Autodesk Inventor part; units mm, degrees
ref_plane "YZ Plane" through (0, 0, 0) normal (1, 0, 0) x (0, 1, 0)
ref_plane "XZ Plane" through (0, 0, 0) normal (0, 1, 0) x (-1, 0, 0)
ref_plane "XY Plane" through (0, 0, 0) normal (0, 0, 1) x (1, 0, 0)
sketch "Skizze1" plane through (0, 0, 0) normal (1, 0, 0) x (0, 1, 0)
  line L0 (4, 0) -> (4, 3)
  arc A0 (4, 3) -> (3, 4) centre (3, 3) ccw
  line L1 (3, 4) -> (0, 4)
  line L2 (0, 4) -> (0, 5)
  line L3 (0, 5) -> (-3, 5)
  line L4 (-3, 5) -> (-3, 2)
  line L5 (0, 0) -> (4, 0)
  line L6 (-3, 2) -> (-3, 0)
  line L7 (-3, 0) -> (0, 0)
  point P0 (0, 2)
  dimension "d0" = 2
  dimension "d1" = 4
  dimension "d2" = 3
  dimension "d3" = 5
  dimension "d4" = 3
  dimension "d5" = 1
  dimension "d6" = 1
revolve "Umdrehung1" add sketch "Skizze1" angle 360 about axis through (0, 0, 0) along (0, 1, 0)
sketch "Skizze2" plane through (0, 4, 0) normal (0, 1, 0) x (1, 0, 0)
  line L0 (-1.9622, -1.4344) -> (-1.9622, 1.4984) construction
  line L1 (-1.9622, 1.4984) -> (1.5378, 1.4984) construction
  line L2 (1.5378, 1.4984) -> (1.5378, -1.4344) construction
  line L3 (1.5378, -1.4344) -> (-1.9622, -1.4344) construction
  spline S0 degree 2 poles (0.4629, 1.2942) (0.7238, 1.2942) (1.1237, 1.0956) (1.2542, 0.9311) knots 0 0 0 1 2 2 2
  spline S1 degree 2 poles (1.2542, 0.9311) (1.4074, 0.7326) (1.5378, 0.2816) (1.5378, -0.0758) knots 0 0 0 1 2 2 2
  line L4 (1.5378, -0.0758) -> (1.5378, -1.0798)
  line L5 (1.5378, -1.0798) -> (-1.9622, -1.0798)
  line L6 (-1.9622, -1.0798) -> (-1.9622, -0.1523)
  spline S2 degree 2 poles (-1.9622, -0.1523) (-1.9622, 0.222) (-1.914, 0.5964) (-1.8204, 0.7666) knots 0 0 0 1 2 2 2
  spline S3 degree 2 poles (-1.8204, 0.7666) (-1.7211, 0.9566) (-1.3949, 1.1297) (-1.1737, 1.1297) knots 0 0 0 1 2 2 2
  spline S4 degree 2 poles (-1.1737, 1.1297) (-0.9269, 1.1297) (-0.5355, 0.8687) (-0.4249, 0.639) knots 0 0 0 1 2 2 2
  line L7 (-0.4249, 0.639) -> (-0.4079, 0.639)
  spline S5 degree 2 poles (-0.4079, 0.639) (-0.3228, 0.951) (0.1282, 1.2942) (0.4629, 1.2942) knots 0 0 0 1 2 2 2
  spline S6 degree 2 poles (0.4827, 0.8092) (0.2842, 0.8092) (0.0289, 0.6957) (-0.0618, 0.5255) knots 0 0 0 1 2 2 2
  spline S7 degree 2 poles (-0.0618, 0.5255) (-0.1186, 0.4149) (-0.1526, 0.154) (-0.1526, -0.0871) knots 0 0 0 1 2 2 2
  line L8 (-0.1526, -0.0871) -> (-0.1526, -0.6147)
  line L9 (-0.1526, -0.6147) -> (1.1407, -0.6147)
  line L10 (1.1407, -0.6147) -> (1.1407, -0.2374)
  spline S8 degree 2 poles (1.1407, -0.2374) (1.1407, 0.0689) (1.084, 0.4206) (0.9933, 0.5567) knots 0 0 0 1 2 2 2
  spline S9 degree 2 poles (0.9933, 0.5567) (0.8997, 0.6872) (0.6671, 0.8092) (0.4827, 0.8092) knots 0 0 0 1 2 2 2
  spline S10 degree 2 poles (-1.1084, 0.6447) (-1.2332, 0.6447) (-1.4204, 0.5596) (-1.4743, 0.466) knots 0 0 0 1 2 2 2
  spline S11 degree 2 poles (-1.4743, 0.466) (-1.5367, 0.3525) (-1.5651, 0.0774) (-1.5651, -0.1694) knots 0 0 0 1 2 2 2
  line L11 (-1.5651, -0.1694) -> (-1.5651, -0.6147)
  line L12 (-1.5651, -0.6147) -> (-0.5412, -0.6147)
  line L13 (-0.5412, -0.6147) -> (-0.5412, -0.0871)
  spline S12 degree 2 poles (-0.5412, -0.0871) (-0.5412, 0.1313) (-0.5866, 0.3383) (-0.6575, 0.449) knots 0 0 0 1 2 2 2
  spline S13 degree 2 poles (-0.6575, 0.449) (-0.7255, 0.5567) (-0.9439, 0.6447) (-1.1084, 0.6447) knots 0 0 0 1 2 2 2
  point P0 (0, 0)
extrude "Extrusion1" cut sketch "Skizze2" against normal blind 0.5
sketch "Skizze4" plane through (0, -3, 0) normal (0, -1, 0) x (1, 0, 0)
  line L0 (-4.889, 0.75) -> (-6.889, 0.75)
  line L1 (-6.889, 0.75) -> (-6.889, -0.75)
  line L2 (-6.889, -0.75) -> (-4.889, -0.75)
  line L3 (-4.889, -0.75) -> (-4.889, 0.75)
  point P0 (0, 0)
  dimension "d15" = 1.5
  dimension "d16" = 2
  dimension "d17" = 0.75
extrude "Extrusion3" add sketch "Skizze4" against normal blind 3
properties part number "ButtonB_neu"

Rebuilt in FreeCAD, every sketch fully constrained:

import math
import FreeCAD as App
import Part
import Sketcher


def add_polygon(sketch, points):
    """Adds a closed chain of lines whose ends are joined by coincident constraints."""
    first, n = sketch.GeometryCount, len(points)
    for a, b in zip(points, points[1:] + points[:1]):
        sketch.addGeometry(Part.LineSegment(App.Vector(*a, 0), App.Vector(*b, 0)), False)
    for i in range(n):
        sketch.addConstraint(Sketcher.Constraint("Coincident", first + i, 2, first + (i + 1) % n, 1))

doc = App.newDocument("Part")
body = doc.addObject("PartDesign::Body", "Body")

# Sketch on YZ plane
sketch1 = body.newObject("Sketcher::SketchObject", "Sketch")
sketch1.AttachmentSupport = (doc.getObject("YZ_Plane"), [""])
sketch1.MapMode = "FlatFace"
sketch1.addGeometry([
    Part.LineSegment(App.Vector(-3, 0, 0), App.Vector(4, 0, 0)),  # 0
    Part.LineSegment(App.Vector(4, 0, 0), App.Vector(4, 3, 0)),  # 1
    Part.ArcOfCircle(Part.Circle(App.Vector(3, 3, 0), App.Vector(0, 0, 1), 1), math.radians(0), math.radians(90)),  # 2
    Part.LineSegment(App.Vector(3, 4, 0), App.Vector(0, 4, 0)),  # 3
    Part.LineSegment(App.Vector(0, 4, 0), App.Vector(0, 5, 0)),  # 4
    Part.LineSegment(App.Vector(0, 5, 0), App.Vector(-3, 5, 0)),  # 5
    Part.LineSegment(App.Vector(-3, 5, 0), App.Vector(-3, 0, 0)),  # 6
], False)
sketch1.addConstraint([
    Sketcher.Constraint("Coincident", 0, 2, 1, 1),
    Sketcher.Constraint("Tangent", 1, 2, 2, 1),
    Sketcher.Constraint("Tangent", 2, 2, 3, 1),
    Sketcher.Constraint("Coincident", 3, 2, 4, 1),
    Sketcher.Constraint("Coincident", 4, 2, 5, 1),
    Sketcher.Constraint("Coincident", 5, 2, 6, 1),
    Sketcher.Constraint("Coincident", 6, 2, 0, 1),
    Sketcher.Constraint("Horizontal", 0),
    Sketcher.Constraint("Vertical", 1),
    Sketcher.Constraint("Horizontal", 3),
    Sketcher.Constraint("Vertical", 4),
    Sketcher.Constraint("Horizontal", 5),
    Sketcher.Constraint("Vertical", 6),
    Sketcher.Constraint("PointOnObject", 0, 2, -1),
    Sketcher.Constraint("PointOnObject", 3, 2, -2),
    Sketcher.Constraint("Equal", 3, 5),
    Sketcher.Constraint("Equal", 5, 1),
    Sketcher.Constraint("Radius", 2, 1.0),
    Sketcher.Constraint("DistanceX", 3, 2, 3, 1, 3.0),
    Sketcher.Constraint("DistanceY", 4, 1, 4, 2, 1.0),
])
revolution = body.newObject("PartDesign::Revolution", "Revolution")
revolution.Profile = sketch1
revolution.ReferenceAxis = (sketch1, ["H_Axis"])
revolution.Angle = 360

# Sketch on XZ plane
sketch2 = body.newObject("Sketcher::SketchObject", "Sketch001")
sketch2.AttachmentSupport = (doc.getObject("XZ_Plane"), [""])
sketch2.MapMode = "FlatFace"
sketch2.AttachmentOffset = App.Placement(App.Vector(0, 0, -4), App.Rotation())
sketch2.addGeometry([
    Part.BSplineCurve([App.Vector(0.4629, -1.2942, 0), App.Vector(0.7238, -1.2942, 0), App.Vector(1.1237, -1.0956, 0), App.Vector(1.2542, -0.9311, 0)], [3, 1, 3], [0, 1, 2], False, 2, [1, 1, 1, 1], False),  # 0
    Part.BSplineCurve([App.Vector(-0.4079, -0.639, 0), App.Vector(-0.3228, -0.951, 0), App.Vector(0.1282, -1.2942, 0), App.Vector(0.4629, -1.2942, 0)], [3, 1, 3], [0, 1, 2], False, 2, [1, 1, 1, 1], False),  # 1
    Part.LineSegment(App.Vector(-0.4079, -0.639, 0), App.Vector(-0.4249, -0.639, 0)),  # 2
    Part.BSplineCurve([App.Vector(-1.1737, -1.1297, 0), App.Vector(-0.9269, -1.1297, 0), App.Vector(-0.5355, -0.8687, 0), App.Vector(-0.4249, -0.639, 0)], [3, 1, 3], [0, 1, 2], False, 2, [1, 1, 1, 1], False),  # 3
    Part.BSplineCurve([App.Vector(-1.8204, -0.7666, 0), App.Vector(-1.7211, -0.9566, 0), App.Vector(-1.3949, -1.1297, 0), App.Vector(-1.1737, -1.1297, 0)], [3, 1, 3], [0, 1, 2], False, 2, [1, 1, 1, 1], False),  # 4
    Part.BSplineCurve([App.Vector(-1.9622, 0.1523, 0), App.Vector(-1.9622, -0.222, 0), App.Vector(-1.914, -0.5964, 0), App.Vector(-1.8204, -0.7666, 0)], [3, 1, 3], [0, 1, 2], False, 2, [1, 1, 1, 1], False),  # 5
    Part.LineSegment(App.Vector(-1.9622, 0.1523, 0), App.Vector(-1.9622, 1.0798, 0)),  # 6
    Part.LineSegment(App.Vector(-1.9622, 1.0798, 0), App.Vector(1.5378, 1.0798, 0)),  # 7
    Part.LineSegment(App.Vector(1.5378, 1.0798, 0), App.Vector(1.5378, 0.0758, 0)),  # 8
    Part.BSplineCurve([App.Vector(1.2542, -0.9311, 0), App.Vector(1.4074, -0.7326, 0), App.Vector(1.5378, -0.2816, 0), App.Vector(1.5378, 0.0758, 0)], [3, 1, 3], [0, 1, 2], False, 2, [1, 1, 1, 1], False),  # 9
    Part.BSplineCurve([App.Vector(-1.1084, -0.6447, 0), App.Vector(-1.2332, -0.6447, 0), App.Vector(-1.4204, -0.5596, 0), App.Vector(-1.4743, -0.466, 0)], [3, 1, 3], [0, 1, 2], False, 2, [1, 1, 1, 1], False),  # 10
    Part.BSplineCurve([App.Vector(-0.6575, -0.449, 0), App.Vector(-0.7255, -0.5567, 0), App.Vector(-0.9439, -0.6447, 0), App.Vector(-1.1084, -0.6447, 0)], [3, 1, 3], [0, 1, 2], False, 2, [1, 1, 1, 1], False),  # 11
    Part.BSplineCurve([App.Vector(-0.5412, 0.0871, 0), App.Vector(-0.5412, -0.1313, 0), App.Vector(-0.5866, -0.3383, 0), App.Vector(-0.6575, -0.449, 0)], [3, 1, 3], [0, 1, 2], False, 2, [1, 1, 1, 1], False),  # 12
    Part.LineSegment(App.Vector(-0.5412, 0.0871, 0), App.Vector(-0.5412, 0.6147, 0)),  # 13
    Part.LineSegment(App.Vector(-0.5412, 0.6147, 0), App.Vector(-1.5651, 0.6147, 0)),  # 14
    Part.LineSegment(App.Vector(-1.5651, 0.6147, 0), App.Vector(-1.5651, 0.1694, 0)),  # 15
    Part.BSplineCurve([App.Vector(-1.4743, -0.466, 0), App.Vector(-1.5367, -0.3525, 0), App.Vector(-1.5651, -0.0774, 0), App.Vector(-1.5651, 0.1694, 0)], [3, 1, 3], [0, 1, 2], False, 2, [1, 1, 1, 1], False),  # 16
    Part.BSplineCurve([App.Vector(0.4827, -0.8092, 0), App.Vector(0.2842, -0.8092, 0), App.Vector(0.0289, -0.6957, 0), App.Vector(-0.0618, -0.5255, 0)], [3, 1, 3], [0, 1, 2], False, 2, [1, 1, 1, 1], False),  # 17
    Part.BSplineCurve([App.Vector(0.9933, -0.5567, 0), App.Vector(0.8997, -0.6872, 0), App.Vector(0.6671, -0.8092, 0), App.Vector(0.4827, -0.8092, 0)], [3, 1, 3], [0, 1, 2], False, 2, [1, 1, 1, 1], False),  # 18
    Part.BSplineCurve([App.Vector(1.1407, 0.2374, 0), App.Vector(1.1407, -0.0689, 0), App.Vector(1.084, -0.4206, 0), App.Vector(0.9933, -0.5567, 0)], [3, 1, 3], [0, 1, 2], False, 2, [1, 1, 1, 1], False),  # 19
    Part.LineSegment(App.Vector(1.1407, 0.2374, 0), App.Vector(1.1407, 0.6147, 0)),  # 20
    Part.LineSegment(App.Vector(1.1407, 0.6147, 0), App.Vector(-0.1526, 0.6147, 0)),  # 21
    Part.LineSegment(App.Vector(-0.1526, 0.6147, 0), App.Vector(-0.1526, 0.0871, 0)),  # 22
    Part.BSplineCurve([App.Vector(-0.0618, -0.5255, 0), App.Vector(-0.1186, -0.4149, 0), App.Vector(-0.1526, -0.154, 0), App.Vector(-0.1526, 0.0871, 0)], [3, 1, 3], [0, 1, 2], False, 2, [1, 1, 1, 1], False),  # 23
], False)
sketch2.addConstraint([
    Sketcher.Constraint("Block", 0),
    Sketcher.Constraint("Block", 1),
    Sketcher.Constraint("Block", 3),
    Sketcher.Constraint("Block", 4),
    Sketcher.Constraint("Block", 5),
    Sketcher.Constraint("Block", 9),
    Sketcher.Constraint("Block", 10),
    Sketcher.Constraint("Block", 11),
    Sketcher.Constraint("Block", 12),
    Sketcher.Constraint("Block", 16),
    Sketcher.Constraint("Block", 17),
    Sketcher.Constraint("Block", 18),
    Sketcher.Constraint("Block", 19),
    Sketcher.Constraint("Block", 23),
    Sketcher.Constraint("Coincident", 1, 1, 2, 1),
    Sketcher.Constraint("Coincident", 2, 2, 3, 2),
    Sketcher.Constraint("Coincident", 5, 1, 6, 1),
    Sketcher.Constraint("Coincident", 6, 2, 7, 1),
    Sketcher.Constraint("Coincident", 7, 2, 8, 1),
    Sketcher.Constraint("Coincident", 8, 2, 9, 2),
    Sketcher.Constraint("Coincident", 12, 1, 13, 1),
    Sketcher.Constraint("Coincident", 13, 2, 14, 1),
    Sketcher.Constraint("Coincident", 14, 2, 15, 1),
    Sketcher.Constraint("Coincident", 15, 2, 16, 2),
    Sketcher.Constraint("Coincident", 19, 1, 20, 1),
    Sketcher.Constraint("Coincident", 20, 2, 21, 1),
    Sketcher.Constraint("Coincident", 21, 2, 22, 1),
    Sketcher.Constraint("Coincident", 22, 2, 23, 2),
    Sketcher.Constraint("Vertical", 6),
    Sketcher.Constraint("Horizontal", 7),
    Sketcher.Constraint("Vertical", 8),
    Sketcher.Constraint("Vertical", 13),
    Sketcher.Constraint("Horizontal", 14),
    Sketcher.Constraint("Vertical", 15),
    Sketcher.Constraint("Vertical", 20),
    Sketcher.Constraint("Horizontal", 21),
    Sketcher.Constraint("Vertical", 22),
    Sketcher.Constraint("Horizontal", 14, 2, 20, 2),
    Sketcher.Constraint("DistanceY", 8, 2, 8, 1, 1.004),
    Sketcher.Constraint("DistanceY", 13, 1, 13, 2, 0.5276),
])
pocket1 = body.newObject("PartDesign::Pocket", "Pocket")
pocket1.Profile = sketch2
pocket1.Length = 0.5
pocket1.Reversed = True

# Sketch on XZ plane
sketch3 = body.newObject("Sketcher::SketchObject", "Sketch002")
sketch3.AttachmentSupport = (doc.getObject("XZ_Plane"), [""])
sketch3.MapMode = "FlatFace"
sketch3.AttachmentOffset = App.Placement(App.Vector(0, 0, 3), App.Rotation())
add_polygon(sketch3, [(-4.9, -0.8), (-4.9, 0.8), (-6.9, 0.8), (-6.9, -0.8)])  # lines 0-3
sketch3.addConstraint([
    Sketcher.Constraint("Vertical", 0),
    Sketcher.Constraint("Horizontal", 1),
    Sketcher.Constraint("Vertical", 2),
    Sketcher.Constraint("Horizontal", 3),
    Sketcher.Constraint("DistanceX", 1, 2, 1, 1, 2.0),
    Sketcher.Constraint("DistanceY", 0, 1, 0, 2, 1.5),
    Sketcher.Constraint("DistanceY", -1, 1, 0, 2, 0.75),
    Sketcher.Constraint("DistanceX", 0, 2, -1, 1, 4.889),
])
pad1 = body.newObject("PartDesign::Pad", "Pad")
pad1.Profile = sketch3
pad1.Length = 3
pad1.Reversed = True

doc.recompute()
